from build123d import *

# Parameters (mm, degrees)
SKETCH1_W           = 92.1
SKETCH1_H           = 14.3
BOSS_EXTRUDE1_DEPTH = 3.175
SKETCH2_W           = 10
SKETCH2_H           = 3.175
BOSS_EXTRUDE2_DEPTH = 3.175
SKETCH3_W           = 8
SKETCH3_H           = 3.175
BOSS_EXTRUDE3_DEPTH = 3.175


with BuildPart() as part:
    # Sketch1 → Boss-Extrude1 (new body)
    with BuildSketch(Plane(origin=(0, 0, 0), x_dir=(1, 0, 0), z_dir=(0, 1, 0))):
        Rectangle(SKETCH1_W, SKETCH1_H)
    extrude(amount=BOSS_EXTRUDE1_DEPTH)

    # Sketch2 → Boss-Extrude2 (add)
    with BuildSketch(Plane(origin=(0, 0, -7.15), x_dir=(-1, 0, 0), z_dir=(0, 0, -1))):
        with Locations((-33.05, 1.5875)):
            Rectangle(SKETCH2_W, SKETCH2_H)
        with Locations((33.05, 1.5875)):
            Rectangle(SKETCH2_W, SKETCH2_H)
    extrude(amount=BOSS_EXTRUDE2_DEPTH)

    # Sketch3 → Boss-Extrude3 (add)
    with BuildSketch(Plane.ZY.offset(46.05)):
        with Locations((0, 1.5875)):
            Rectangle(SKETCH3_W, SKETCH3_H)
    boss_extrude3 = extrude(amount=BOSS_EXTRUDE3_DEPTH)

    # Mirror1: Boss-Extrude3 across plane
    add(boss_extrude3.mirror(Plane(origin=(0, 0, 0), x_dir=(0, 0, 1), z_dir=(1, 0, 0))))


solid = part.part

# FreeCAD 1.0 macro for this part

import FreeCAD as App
import Part
import Sketcher
from FreeCAD import Vector

doc = App.newDocument("Part")
params = doc.addObject("Spreadsheet::Sheet", "Params")
for row, (alias, value) in enumerate([
    ("sketch1_width", "92.1 mm"),
    ("sketch1_height", "14.3 mm"),
    ("pad1_length", "3.175 mm"),
    ("sketch2_width", "10 mm"),
    ("pad2_length", "3.175 mm"),
    ("sketch3_height", "8 mm"),
    ("pad3_length", "3.175 mm"),
], start=1):
    params.set(f"A{row}", alias)
    params.set(f"B{row}", "=" + value)
    params.setAlias(f"B{row}", alias)

body = doc.addObject("PartDesign::Body", "Body")

sketch1 = body.newObject("Sketcher::SketchObject", "Sketch")
sketch1.AttachmentSupport = (doc.getObject("XZ_Plane"), [""])
sketch1.MapMode = "FlatFace"
sketch1.addGeometry([
    Part.LineSegment(Vector(-46, -7, 0), Vector(-46, 7, 0)),
    Part.LineSegment(Vector(-46, 7, 0), Vector(46, 7, 0)),
    Part.LineSegment(Vector(46, 7, 0), Vector(46, -7, 0)),
    Part.LineSegment(Vector(46, -7, 0), Vector(-46, -7, 0)),
], False)
sketch1.addConstraint([
    Sketcher.Constraint("Coincident", 0, 2, 1, 1),
    Sketcher.Constraint("Coincident", 1, 2, 2, 1),
    Sketcher.Constraint("Coincident", 2, 2, 3, 1),
    Sketcher.Constraint("Coincident", 3, 2, 0, 1),
    Sketcher.Constraint("Vertical", 0),
    Sketcher.Constraint("Horizontal", 1),
    Sketcher.Constraint("Vertical", 2),
    Sketcher.Constraint("Horizontal", 3),
    Sketcher.Constraint("Symmetric", 0, 2, 2, 2, -1, 1),
    Sketcher.Constraint("DistanceX", 1, 1, 1, 2, 92.1),
    Sketcher.Constraint("DistanceY", 0, 1, 0, 2, 14.3),
])
sketch1.setExpression("Constraints[9]", "Params.sketch1_width")
sketch1.setExpression("Constraints[10]", "Params.sketch1_height")
pad1 = body.newObject("PartDesign::Pad", "Pad")
pad1.Profile = sketch1
pad1.setExpression("Length", "Params.pad1_length")
pad1.Reversed = True

sketch2 = body.newObject("Sketcher::SketchObject", "Sketch001")
sketch2.AttachmentSupport = (doc.getObject("XY_Plane"), [""])
sketch2.MapMode = "FlatFace"
sketch2.AttachmentOffset = App.Placement(Vector(0, 0, -7.15), App.Rotation())
sketch2.addGeometry([
    Part.LineSegment(Vector(38, 3.2, 0), Vector(38, 0, 0)),
    Part.LineSegment(Vector(38, 0, 0), Vector(28.1, 0, 0)),
    Part.LineSegment(Vector(28.1, 0, 0), Vector(28.1, 3.2, 0)),
    Part.LineSegment(Vector(28.1, 3.2, 0), Vector(38, 3.2, 0)),
    Part.LineSegment(Vector(-28.1, 3.2, 0), Vector(-28.1, 0, 0)),
    Part.LineSegment(Vector(-28.1, 0, 0), Vector(-38, 0, 0)),
    Part.LineSegment(Vector(-38, 0, 0), Vector(-38, 3.2, 0)),
    Part.LineSegment(Vector(-38, 3.2, 0), Vector(-28.1, 3.2, 0)),
], False)
sketch2.addConstraint([
    Sketcher.Constraint("Coincident", 0, 2, 1, 1),
    Sketcher.Constraint("Coincident", 1, 2, 2, 1),
    Sketcher.Constraint("Coincident", 2, 2, 3, 1),
    Sketcher.Constraint("Coincident", 3, 2, 0, 1),
    Sketcher.Constraint("Coincident", 4, 2, 5, 1),
    Sketcher.Constraint("Coincident", 5, 2, 6, 1),
    Sketcher.Constraint("Coincident", 6, 2, 7, 1),
    Sketcher.Constraint("Coincident", 7, 2, 4, 1),
    Sketcher.Constraint("Vertical", 0),
    Sketcher.Constraint("Horizontal", 1),
    Sketcher.Constraint("Vertical", 2),
    Sketcher.Constraint("Horizontal", 3),
    Sketcher.Constraint("Vertical", 4),
    Sketcher.Constraint("Horizontal", 5),
    Sketcher.Constraint("Vertical", 6),
    Sketcher.Constraint("Horizontal", 7),
    Sketcher.Constraint("Symmetric", 1, 2, 4, 2, -1, 1),
    Sketcher.Constraint("Symmetric", 0, 2, 5, 2, -2),
    Sketcher.Constraint("Horizontal", 3, 2, 6, 2),
    Sketcher.Constraint("DistanceX", 1, 2, 1, 1, 10.0),
    Sketcher.Constraint("DistanceX", 4, 2, 1, 2, 56.1),
    Sketcher.Constraint("DistanceY", 0, 2, 0, 1, 3.175),
])
sketch2.setExpression("Constraints[19]", "Params.sketch2_width")
pad2 = body.newObject("PartDesign::Pad", "Pad001")
pad2.Profile = sketch2
pad2.setExpression("Length", "Params.pad2_length")
pad2.Reversed = True

sketch3 = body.newObject("Sketcher::SketchObject", "Sketch002")
sketch3.AttachmentSupport = (doc.getObject("YZ_Plane"), [""])
sketch3.MapMode = "FlatFace"
sketch3.AttachmentOffset = App.Placement(Vector(0, 0, -46.05), App.Rotation())
sketch3.addGeometry([
    Part.LineSegment(Vector(3.2, -4, 0), Vector(0, -4, 0)),
    Part.LineSegment(Vector(0, -4, 0), Vector(0, 4, 0)),
    Part.LineSegment(Vector(0, 4, 0), Vector(3.2, 4, 0)),
    Part.LineSegment(Vector(3.2, 4, 0), Vector(3.2, -4, 0)),
], False)
sketch3.addConstraint([
    Sketcher.Constraint("Coincident", 0, 2, 1, 1),
    Sketcher.Constraint("Coincident", 1, 2, 2, 1),
    Sketcher.Constraint("Coincident", 2, 2, 3, 1),
    Sketcher.Constraint("Coincident", 3, 2, 0, 1),
    Sketcher.Constraint("Horizontal", 0),
    Sketcher.Constraint("Vertical", 1),
    Sketcher.Constraint("Horizontal", 2),
    Sketcher.Constraint("Vertical", 3),
    Sketcher.Constraint("Symmetric", 0, 2, 1, 2, -1, 1),
    Sketcher.Constraint("DistanceY", 1, 1, 1, 2, 8.0),
    Sketcher.Constraint("DistanceX", 0, 2, 0, 1, 3.175),
])
sketch3.setExpression("Constraints[9]", "Params.sketch3_height")
pad3 = body.newObject("PartDesign::Pad", "Pad002")
pad3.Profile = sketch3
pad3.setExpression("Length", "Params.pad3_length")
pad3.Reversed = True
doc.recompute()

mirrored = body.newObject("PartDesign::Mirrored", "Mirrored")
mirrored.Originals = [pad3]
mirrored.MirrorPlane = (doc.getObject("YZ_Plane"), [""])
body.Tip = mirrored

doc.recompute()
